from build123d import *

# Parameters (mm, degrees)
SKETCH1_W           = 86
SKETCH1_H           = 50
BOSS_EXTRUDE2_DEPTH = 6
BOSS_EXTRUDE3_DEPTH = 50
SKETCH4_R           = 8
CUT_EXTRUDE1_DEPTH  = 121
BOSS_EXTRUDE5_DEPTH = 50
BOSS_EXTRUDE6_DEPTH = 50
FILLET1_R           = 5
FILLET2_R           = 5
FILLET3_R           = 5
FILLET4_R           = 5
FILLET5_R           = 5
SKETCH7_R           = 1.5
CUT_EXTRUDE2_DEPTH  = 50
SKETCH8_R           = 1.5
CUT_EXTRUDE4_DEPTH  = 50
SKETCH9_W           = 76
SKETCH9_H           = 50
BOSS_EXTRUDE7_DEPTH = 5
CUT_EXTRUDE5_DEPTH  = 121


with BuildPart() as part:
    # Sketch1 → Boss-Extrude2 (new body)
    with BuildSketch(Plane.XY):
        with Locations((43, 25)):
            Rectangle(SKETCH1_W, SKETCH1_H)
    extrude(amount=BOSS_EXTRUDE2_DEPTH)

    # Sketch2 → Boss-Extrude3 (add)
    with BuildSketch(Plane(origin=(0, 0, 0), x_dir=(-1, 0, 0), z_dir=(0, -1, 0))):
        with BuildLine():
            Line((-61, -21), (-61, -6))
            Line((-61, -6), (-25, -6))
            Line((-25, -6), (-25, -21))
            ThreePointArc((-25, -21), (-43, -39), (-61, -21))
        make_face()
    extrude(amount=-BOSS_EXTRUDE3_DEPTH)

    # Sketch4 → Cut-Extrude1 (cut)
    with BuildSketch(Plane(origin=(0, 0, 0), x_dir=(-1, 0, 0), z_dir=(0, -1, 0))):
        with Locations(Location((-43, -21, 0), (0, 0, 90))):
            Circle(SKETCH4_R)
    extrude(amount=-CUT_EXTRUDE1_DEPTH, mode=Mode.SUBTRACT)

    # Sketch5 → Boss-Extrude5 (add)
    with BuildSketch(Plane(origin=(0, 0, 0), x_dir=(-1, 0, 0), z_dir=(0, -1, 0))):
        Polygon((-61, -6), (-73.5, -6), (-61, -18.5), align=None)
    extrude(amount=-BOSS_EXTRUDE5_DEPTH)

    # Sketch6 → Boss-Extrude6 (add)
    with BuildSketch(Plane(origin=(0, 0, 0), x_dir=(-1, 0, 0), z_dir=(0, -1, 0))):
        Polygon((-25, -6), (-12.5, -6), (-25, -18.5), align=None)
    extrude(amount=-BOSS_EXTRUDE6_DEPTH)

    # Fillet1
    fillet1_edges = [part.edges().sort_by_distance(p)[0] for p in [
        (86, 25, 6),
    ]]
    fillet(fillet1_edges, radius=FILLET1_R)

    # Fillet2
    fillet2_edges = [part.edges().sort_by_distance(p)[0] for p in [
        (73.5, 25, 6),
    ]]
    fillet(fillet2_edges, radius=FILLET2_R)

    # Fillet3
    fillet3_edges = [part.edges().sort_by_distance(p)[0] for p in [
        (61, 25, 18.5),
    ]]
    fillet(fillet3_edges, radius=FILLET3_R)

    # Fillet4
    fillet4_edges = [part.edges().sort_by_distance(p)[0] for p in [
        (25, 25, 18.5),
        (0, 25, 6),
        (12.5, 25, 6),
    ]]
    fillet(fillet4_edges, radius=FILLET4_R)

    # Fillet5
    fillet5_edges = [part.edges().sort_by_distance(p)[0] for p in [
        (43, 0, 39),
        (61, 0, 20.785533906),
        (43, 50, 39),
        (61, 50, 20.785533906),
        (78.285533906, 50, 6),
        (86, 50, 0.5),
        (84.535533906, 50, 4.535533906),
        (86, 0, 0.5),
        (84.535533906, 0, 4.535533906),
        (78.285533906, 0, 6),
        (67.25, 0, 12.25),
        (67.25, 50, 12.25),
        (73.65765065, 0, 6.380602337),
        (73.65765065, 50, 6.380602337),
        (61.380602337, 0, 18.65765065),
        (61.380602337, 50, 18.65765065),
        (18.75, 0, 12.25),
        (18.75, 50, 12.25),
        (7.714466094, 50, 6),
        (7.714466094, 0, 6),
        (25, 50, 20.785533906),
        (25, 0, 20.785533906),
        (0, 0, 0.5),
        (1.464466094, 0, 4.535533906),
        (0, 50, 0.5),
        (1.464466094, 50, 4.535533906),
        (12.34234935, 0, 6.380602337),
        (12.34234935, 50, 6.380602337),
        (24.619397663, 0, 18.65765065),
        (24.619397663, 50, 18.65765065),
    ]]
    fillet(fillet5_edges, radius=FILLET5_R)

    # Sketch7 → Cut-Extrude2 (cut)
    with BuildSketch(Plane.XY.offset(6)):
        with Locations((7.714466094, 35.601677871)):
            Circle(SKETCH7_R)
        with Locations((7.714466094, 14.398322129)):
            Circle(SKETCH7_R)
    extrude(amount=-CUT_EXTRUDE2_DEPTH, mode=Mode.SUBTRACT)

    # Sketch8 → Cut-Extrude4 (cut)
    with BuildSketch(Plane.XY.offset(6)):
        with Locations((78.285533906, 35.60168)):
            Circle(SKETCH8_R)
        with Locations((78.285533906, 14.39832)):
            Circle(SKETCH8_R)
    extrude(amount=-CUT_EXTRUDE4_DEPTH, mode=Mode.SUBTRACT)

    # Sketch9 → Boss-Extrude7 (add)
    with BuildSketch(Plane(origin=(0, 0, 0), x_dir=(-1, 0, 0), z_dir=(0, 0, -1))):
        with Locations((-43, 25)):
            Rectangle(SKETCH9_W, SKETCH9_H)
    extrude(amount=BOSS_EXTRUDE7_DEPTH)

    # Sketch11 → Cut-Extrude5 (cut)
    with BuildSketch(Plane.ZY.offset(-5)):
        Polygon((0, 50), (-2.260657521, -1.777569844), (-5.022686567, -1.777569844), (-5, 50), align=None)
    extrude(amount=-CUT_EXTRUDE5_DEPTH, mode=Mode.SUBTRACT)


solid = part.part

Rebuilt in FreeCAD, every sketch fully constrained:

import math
import FreeCAD as App
import Part
import Sketcher

V = App.Vector
Q = App.Units.Quantity


def edges_at(feature, points):
    """Names of the edges that pass closest to the given points."""
    edges = feature.Shape.Edges
    near = lambda p: min(range(len(edges)), key=lambda i: edges[i].distToShape(Part.Vertex(*p))[0])
    return sorted({f"Edge{near(p) + 1}" for p in points})


def add_polygon(sketch, points):
    """Adds a closed chain of lines whose ends are joined by coincident constraints."""
    first, n = sketch.GeometryCount, len(points)
    for a, b in zip(points, points[1:] + points[:1]):
        sketch.addGeometry(Part.LineSegment(App.Vector(*a, 0), App.Vector(*b, 0)), False)
    for i in range(n):
        sketch.addConstraint(Sketcher.Constraint("Coincident", first + i, 2, first + (i + 1) % n, 1))

doc = App.newDocument("Part")
body = doc.addObject("PartDesign::Body", "Body")

# Sketch on XY plane
sketch1 = body.newObject("Sketcher::SketchObject", "Sketch")
sketch1.AttachmentSupport = (doc.getObject("XY_Plane"), [""])
sketch1.MapMode = "FlatFace"
add_polygon(sketch1, [(0, 50), (0, 0), (86, 0), (86, 50)])  # lines 0-3
sketch1.addConstraint([
    Sketcher.Constraint("Vertical", 0),
    Sketcher.Constraint("Horizontal", 1),
    Sketcher.Constraint("Vertical", 2),
    Sketcher.Constraint("Horizontal", 3),
    Sketcher.Constraint("Coincident", 0, 2, -1, 1),
    Sketcher.Constraint("DistanceX", 1, 1, 1, 2, 86.0),
    Sketcher.Constraint("DistanceY", 0, 2, 0, 1, 50.0),
])
pad1 = body.newObject("PartDesign::Pad", "Pad")
pad1.Profile = sketch1
pad1.Length = 6

# Sketch on XZ plane
sketch2 = body.newObject("Sketcher::SketchObject", "Sketch001")
sketch2.AttachmentSupport = (doc.getObject("XZ_Plane"), [""])
sketch2.MapMode = "FlatFace"
sketch2.addGeometry([
    Part.LineSegment(V(61, 6, 0), V(61, 21, 0)),
    Part.ArcOfCircle(Part.Circle(V(43, 21, 0), V(0, 0, 1), 18), math.radians(0), math.radians(180)),
    Part.LineSegment(V(25, 21, 0), V(25, 6, 0)),
    Part.LineSegment(V(25, 6, 0), V(61, 6, 0)),
], False)
sketch2.addConstraint([
    Sketcher.Constraint("Tangent", 0, 2, 1, 1),
    Sketcher.Constraint("Tangent", 1, 2, 2, 1),
    Sketcher.Constraint("Coincident", 2, 2, 3, 1),
    Sketcher.Constraint("Coincident", 3, 2, 0, 1),
    Sketcher.Constraint("Vertical", 0),
    Sketcher.Constraint("Vertical", 2),
    Sketcher.Constraint("Horizontal", 3),
    Sketcher.Constraint("Radius", 1, 18.0),
    Sketcher.Constraint("DistanceY", 0, 1, 0, 2, 15.0),
    Sketcher.Constraint("DistanceX", -1, 1, 1, 3, 43.0),
    Sketcher.Constraint("DistanceY", -1, 1, 1, 3, 21.0),
])
pad2 = body.newObject("PartDesign::Pad", "Pad001")
pad2.Profile = sketch2
pad2.Length = 50
pad2.Reversed = True

# Sketch on XZ plane
sketch3 = body.newObject("Sketcher::SketchObject", "Sketch002")
sketch3.AttachmentSupport = (doc.getObject("XZ_Plane"), [""])
sketch3.MapMode = "FlatFace"
sketch3.addGeometry(Part.Circle(V(43, 21, 0), V(0, 0, 1), 8), False)
sketch3.addConstraint([
    Sketcher.Constraint("Diameter", 0, 16.0),
    Sketcher.Constraint("DistanceX", -1, 1, 0, 3, 43.0),
    Sketcher.Constraint("DistanceY", -1, 1, 0, 3, 21.0),
])
pocket1 = body.newObject("PartDesign::Pocket", "Pocket")
pocket1.Profile = sketch3
pocket1.Length = 121

# Sketch on XZ plane
sketch4 = body.newObject("Sketcher::SketchObject", "Sketch003")
sketch4.AttachmentSupport = (doc.getObject("XZ_Plane"), [""])
sketch4.MapMode = "FlatFace"
add_polygon(sketch4, [(61, 6), (74, 6), (61, 18)])  # lines 0-2
sketch4.addConstraint([
    Sketcher.Constraint("Horizontal", 0),
    Sketcher.Constraint("Vertical", 2),
    Sketcher.Constraint("Equal", 0, 2),
    Sketcher.Constraint("DistanceX", 0, 1, 0, 2, 12.5),
    Sketcher.Constraint("DistanceY", -1, 1, 0, 2, 6.0),
    Sketcher.Constraint("DistanceX", -1, 1, 1, 2, 61.0),
])
pad3 = body.newObject("PartDesign::Pad", "Pad002")
pad3.Profile = sketch4
pad3.Length = 50
pad3.Reversed = True

# Sketch on XZ plane
sketch5 = body.newObject("Sketcher::SketchObject", "Sketch004")
sketch5.AttachmentSupport = (doc.getObject("XZ_Plane"), [""])
sketch5.MapMode = "FlatFace"
add_polygon(sketch5, [(12, 6), (25, 6), (25, 18)])  # lines 0-2
sketch5.addConstraint([
    Sketcher.Constraint("Horizontal", 0),
    Sketcher.Constraint("Vertical", 1),
    Sketcher.Constraint("Equal", 0, 1),
    Sketcher.Constraint("DistanceX", 0, 1, 0, 2, 12.5),
    Sketcher.Constraint("DistanceX", -1, 1, 0, 2, 25.0),
    Sketcher.Constraint("DistanceY", -1, 1, 0, 2, 6.0),
])
pad4 = body.newObject("PartDesign::Pad", "Pad003")
pad4.Profile = sketch5
pad4.Length = 50
pad4.Reversed = True
doc.recompute()

fillet = body.newObject("PartDesign::Fillet", "Fillet")
fillet.Base = (pad4, edges_at(pad4, [(86, 25, 6)]))
fillet.Radius = 5
doc.recompute()

fillet2 = body.newObject("PartDesign::Fillet", "Fillet001")
fillet2.Base = (fillet, edges_at(fillet, [(73.5, 25, 6)]))
fillet2.Radius = 5
doc.recompute()

fillet3 = body.newObject("PartDesign::Fillet", "Fillet002")
fillet3.Base = (fillet2, edges_at(fillet2, [(61, 25, 18.5)]))
fillet3.Radius = 5
doc.recompute()

fillet4 = body.newObject("PartDesign::Fillet", "Fillet003")
fillet4.Base = (fillet3, edges_at(fillet3, [(25, 25, 18.5), (0, 25, 6), (12.5, 25, 6)]))
fillet4.Radius = 5
doc.recompute()

fillet5 = body.newObject("PartDesign::Fillet", "Fillet004")
fillet5.Base = (fillet4, edges_at(fillet4, [
    (43, 0, 39),
    (61, 0, 20.786),
    (43, 50, 39),
    (61, 50, 20.786),
    (78.286, 50, 6),
    (86, 50, 0.5),
    (84.536, 50, 4.536),
    (86, 0, 0.5),
    (84.536, 0, 4.536),
    (78.286, 0, 6),
    (67.25, 0, 12.25),
    (67.25, 50, 12.25),
    (73.658, 0, 6.381),
    (73.658, 50, 6.381),
    (61.381, 0, 18.658),
    (61.381, 50, 18.658),
    (18.75, 0, 12.25),
    (18.75, 50, 12.25),
    (7.714, 50, 6),
    (7.714, 0, 6),
    (25, 50, 20.786),
    (25, 0, 20.786),
    (0, 0, 0.5),
    (1.464, 0, 4.536),
    (0, 50, 0.5),
    (1.464, 50, 4.536),
    (12.342, 0, 6.381),
    (12.342, 50, 6.381),
    (24.619, 0, 18.658),
    (24.619, 50, 18.658),
]))
fillet5.Radius = 5

# Sketch on XY plane
sketch6 = body.newObject("Sketcher::SketchObject", "Sketch005")
sketch6.AttachmentSupport = (doc.getObject("XY_Plane"), [""])
sketch6.MapMode = "FlatFace"
sketch6.AttachmentOffset = App.Placement(V(0, 0, 6), App.Rotation())
sketch6.addGeometry([
    Part.Circle(V(7.7, 35.6, 0), V(0, 0, 1), 1.5),
    Part.Circle(V(7.7, 14.4, 0), V(0, 0, 1), 1.5),
], False)
sketch6.addConstraint([
    Sketcher.Constraint("Equal", 0, 1),
    Sketcher.Constraint("Vertical", 0, 3, 1, 3),
    Sketcher.Constraint("Diameter", 0, 3.0),
    Sketcher.Constraint("DistanceX", -1, 1, 0, 3, 7.714466),
    Sketcher.Constraint("DistanceY", -1, 1, 0, 3, 35.601678),
    Sketcher.Constraint("DistanceY", -1, 1, 1, 3, 14.398322),
])
pocket2 = body.newObject("PartDesign::Pocket", "Pocket001")
pocket2.Profile = sketch6
pocket2.Length = 50

# Sketch on XY plane
sketch7 = body.newObject("Sketcher::SketchObject", "Sketch006")
sketch7.AttachmentSupport = (doc.getObject("XY_Plane"), [""])
sketch7.MapMode = "FlatFace"
sketch7.AttachmentOffset = App.Placement(V(0, 0, 6), App.Rotation())
sketch7.addGeometry([
    Part.Circle(V(78.3, 35.6, 0), V(0, 0, 1), 1.5),
    Part.Circle(V(78.3, 14.4, 0), V(0, 0, 1), 1.5),
], False)
sketch7.addConstraint([
    Sketcher.Constraint("Equal", 0, 1),
    Sketcher.Constraint("Vertical", 0, 3, 1, 3),
    Sketcher.Constraint("Diameter", 0, 3.0),
    Sketcher.Constraint("DistanceY", -1, 1, 0, 3, 35.60168),
    Sketcher.Constraint("DistanceY", -1, 1, 1, 3, 14.39832),
    Sketcher.Constraint("DistanceX", -1, 1, 0, 3, 78.285534),
])
pocket3 = body.newObject("PartDesign::Pocket", "Pocket002")
pocket3.Profile = sketch7
pocket3.Length = 50

# Sketch on XY plane
sketch8 = body.newObject("Sketcher::SketchObject", "Sketch007")
sketch8.AttachmentSupport = (doc.getObject("XY_Plane"), [""])
sketch8.MapMode = "FlatFace"
add_polygon(sketch8, [(81, 50), (81, 0), (5, 0), (5, 50)])  # lines 0-3
sketch8.addConstraint([
    Sketcher.Constraint("Vertical", 0),
    Sketcher.Constraint("Horizontal", 1),
    Sketcher.Constraint("Vertical", 2),
    Sketcher.Constraint("Horizontal", 3),
    Sketcher.Constraint("PointOnObject", 0, 2, -1),
    Sketcher.Constraint("DistanceX", 1, 2, 1, 1, 76.0),
    Sketcher.Constraint("DistanceY", 0, 2, 0, 1, 50.0),
    Sketcher.Constraint("DistanceX", -1, 1, 0, 2, 81.0),
])
pad5 = body.newObject("PartDesign::Pad", "Pad004")
pad5.Profile = sketch8
pad5.Length = 5
pad5.Reversed = True

# Sketch on YZ plane
sketch9 = body.newObject("Sketcher::SketchObject", "Sketch008")
sketch9.AttachmentSupport = (doc.getObject("YZ_Plane"), [""])
sketch9.MapMode = "FlatFace"
sketch9.AttachmentOffset = App.Placement(V(0, 0, 5), App.Rotation())
add_polygon(sketch9, [(-1.8, -2.3), (50, 0), (50, -5), (-1.8, -5)])  # lines 0-3
sketch9.addConstraint([
    Sketcher.Constraint("Vertical", 1),
    Sketcher.Constraint("Vertical", 3),
    Sketcher.Constraint("PointOnObject", 0, 2, -1),
    Sketcher.Constraint("DistanceY", 1, 2, 1, 1, 5.0),
    Sketcher.Constraint("DistanceX", -1, 1, 0, 2, 50.0),
    Sketcher.Constraint("Angle", 0, Q("2.5 deg")),
    Sketcher.Constraint("DistanceY", 3, 1, 3, 2, 2.762029),
    Sketcher.Constraint("DistanceX", 2, 2, -1, 1, 1.77757),
])
pocket4 = body.newObject("PartDesign::Pocket", "Pocket003")
pocket4.Profile = sketch9
pocket4.Length = 121
pocket4.Reversed = True

doc.recompute()
